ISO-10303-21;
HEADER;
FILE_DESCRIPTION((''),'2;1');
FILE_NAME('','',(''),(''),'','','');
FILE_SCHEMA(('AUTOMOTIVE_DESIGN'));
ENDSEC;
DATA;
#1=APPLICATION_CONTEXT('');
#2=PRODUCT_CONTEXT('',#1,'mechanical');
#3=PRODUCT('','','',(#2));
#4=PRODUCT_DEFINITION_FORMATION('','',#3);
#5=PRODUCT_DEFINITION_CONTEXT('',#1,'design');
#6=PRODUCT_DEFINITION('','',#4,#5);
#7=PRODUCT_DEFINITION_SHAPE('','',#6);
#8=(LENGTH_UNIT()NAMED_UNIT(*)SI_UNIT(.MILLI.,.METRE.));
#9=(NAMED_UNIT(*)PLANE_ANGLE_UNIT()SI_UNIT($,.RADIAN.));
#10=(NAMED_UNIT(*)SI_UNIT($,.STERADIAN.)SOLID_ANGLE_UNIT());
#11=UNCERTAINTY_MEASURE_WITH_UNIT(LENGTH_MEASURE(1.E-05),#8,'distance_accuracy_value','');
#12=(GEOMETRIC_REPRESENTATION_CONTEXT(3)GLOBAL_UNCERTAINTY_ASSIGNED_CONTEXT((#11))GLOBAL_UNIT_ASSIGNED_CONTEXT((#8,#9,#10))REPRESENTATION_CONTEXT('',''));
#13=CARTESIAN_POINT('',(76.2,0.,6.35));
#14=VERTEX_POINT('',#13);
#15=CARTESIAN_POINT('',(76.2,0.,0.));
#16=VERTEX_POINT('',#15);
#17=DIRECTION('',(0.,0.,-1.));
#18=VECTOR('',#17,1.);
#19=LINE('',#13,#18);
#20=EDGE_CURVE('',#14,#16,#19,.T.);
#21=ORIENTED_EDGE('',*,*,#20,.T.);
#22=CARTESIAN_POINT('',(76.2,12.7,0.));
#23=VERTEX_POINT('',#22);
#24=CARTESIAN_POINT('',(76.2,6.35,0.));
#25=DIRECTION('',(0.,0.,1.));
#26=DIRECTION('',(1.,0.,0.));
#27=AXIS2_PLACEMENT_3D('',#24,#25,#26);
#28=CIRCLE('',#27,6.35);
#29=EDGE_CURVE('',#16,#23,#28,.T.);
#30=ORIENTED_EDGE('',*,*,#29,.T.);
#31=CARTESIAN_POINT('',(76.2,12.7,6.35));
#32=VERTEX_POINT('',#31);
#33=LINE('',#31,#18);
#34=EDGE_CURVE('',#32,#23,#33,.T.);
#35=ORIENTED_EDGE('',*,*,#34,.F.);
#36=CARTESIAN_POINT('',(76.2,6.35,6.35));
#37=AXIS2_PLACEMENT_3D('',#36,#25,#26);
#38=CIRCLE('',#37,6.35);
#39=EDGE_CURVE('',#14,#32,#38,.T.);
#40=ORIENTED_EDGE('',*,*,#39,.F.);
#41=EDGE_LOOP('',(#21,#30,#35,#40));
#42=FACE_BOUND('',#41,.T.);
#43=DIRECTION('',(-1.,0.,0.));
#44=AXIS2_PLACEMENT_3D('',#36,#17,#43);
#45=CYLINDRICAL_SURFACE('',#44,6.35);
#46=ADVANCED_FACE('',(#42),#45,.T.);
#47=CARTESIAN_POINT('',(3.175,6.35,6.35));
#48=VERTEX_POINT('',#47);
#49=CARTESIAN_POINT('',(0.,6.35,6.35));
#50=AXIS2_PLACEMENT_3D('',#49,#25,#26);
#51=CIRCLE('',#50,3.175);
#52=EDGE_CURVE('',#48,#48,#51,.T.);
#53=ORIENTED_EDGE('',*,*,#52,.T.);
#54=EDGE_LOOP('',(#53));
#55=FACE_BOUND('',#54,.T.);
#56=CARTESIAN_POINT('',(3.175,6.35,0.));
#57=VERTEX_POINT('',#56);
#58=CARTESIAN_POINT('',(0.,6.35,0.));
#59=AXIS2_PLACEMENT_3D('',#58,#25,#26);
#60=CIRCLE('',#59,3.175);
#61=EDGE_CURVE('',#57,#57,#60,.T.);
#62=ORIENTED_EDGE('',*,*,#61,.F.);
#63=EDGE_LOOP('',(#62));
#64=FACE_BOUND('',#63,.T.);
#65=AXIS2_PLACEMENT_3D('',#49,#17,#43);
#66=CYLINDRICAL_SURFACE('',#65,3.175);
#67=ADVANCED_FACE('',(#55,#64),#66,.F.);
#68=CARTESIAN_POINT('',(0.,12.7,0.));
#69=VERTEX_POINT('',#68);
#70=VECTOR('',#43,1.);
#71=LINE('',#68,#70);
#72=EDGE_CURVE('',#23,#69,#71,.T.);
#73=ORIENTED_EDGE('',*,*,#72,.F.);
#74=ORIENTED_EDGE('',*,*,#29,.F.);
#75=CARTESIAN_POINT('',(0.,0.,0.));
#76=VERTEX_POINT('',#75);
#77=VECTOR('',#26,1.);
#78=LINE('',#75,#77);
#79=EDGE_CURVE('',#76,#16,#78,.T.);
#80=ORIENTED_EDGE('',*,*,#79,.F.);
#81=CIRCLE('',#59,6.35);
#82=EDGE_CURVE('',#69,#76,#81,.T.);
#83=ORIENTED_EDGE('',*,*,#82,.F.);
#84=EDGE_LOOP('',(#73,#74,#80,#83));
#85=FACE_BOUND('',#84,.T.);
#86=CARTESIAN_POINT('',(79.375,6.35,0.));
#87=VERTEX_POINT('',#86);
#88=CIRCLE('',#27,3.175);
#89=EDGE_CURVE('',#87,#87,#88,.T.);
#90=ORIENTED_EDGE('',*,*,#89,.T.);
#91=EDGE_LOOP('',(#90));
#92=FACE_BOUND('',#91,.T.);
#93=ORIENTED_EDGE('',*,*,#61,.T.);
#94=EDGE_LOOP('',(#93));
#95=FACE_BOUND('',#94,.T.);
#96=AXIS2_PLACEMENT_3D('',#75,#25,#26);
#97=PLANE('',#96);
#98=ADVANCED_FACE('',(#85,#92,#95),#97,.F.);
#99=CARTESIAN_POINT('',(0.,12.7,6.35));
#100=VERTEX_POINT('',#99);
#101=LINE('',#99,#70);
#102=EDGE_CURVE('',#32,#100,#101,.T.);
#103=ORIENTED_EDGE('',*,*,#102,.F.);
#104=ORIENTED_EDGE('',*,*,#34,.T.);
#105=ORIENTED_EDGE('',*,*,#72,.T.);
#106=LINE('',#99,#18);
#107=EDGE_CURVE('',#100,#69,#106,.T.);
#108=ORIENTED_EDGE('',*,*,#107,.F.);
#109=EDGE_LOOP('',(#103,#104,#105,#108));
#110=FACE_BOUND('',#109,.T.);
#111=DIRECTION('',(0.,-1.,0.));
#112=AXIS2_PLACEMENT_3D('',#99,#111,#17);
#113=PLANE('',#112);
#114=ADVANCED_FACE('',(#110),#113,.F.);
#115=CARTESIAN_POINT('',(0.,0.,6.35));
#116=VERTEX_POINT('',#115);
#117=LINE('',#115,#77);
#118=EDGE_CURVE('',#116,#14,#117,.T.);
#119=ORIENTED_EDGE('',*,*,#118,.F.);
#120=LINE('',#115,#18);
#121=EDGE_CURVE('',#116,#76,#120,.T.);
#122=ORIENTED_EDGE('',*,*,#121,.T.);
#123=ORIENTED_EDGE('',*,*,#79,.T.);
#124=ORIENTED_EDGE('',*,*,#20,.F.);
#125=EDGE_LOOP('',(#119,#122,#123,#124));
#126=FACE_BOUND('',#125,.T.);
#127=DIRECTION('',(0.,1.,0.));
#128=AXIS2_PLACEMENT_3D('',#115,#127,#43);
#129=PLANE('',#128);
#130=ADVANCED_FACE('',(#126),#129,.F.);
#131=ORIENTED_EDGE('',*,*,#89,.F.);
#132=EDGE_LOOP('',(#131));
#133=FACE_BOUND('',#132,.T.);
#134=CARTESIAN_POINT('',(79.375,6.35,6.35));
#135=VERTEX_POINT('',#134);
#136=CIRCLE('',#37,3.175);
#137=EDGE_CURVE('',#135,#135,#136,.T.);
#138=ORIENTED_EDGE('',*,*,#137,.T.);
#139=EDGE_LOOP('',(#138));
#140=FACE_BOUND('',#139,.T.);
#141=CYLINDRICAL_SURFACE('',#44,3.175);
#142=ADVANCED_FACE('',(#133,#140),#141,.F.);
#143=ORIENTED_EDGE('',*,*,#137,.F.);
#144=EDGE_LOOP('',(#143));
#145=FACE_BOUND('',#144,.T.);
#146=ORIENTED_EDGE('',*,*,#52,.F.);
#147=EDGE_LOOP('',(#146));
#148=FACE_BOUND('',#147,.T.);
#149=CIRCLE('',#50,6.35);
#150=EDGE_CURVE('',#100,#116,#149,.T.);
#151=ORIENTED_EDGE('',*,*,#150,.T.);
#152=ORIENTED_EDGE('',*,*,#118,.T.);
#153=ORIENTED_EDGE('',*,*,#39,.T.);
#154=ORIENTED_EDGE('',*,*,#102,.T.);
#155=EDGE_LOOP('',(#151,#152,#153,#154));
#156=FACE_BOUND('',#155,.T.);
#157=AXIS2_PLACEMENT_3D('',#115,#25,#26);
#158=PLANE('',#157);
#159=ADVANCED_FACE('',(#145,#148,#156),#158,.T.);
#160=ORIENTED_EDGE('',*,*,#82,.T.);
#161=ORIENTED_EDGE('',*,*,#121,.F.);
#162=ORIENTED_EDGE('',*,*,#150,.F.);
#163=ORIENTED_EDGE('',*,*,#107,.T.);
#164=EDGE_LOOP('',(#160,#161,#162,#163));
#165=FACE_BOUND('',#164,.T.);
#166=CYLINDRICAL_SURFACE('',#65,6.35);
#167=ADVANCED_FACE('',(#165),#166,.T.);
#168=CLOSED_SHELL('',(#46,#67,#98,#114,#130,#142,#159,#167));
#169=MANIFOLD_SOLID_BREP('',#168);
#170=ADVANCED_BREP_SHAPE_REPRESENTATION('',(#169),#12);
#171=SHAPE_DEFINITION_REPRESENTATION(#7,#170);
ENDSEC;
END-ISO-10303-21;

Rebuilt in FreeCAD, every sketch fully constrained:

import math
import FreeCAD as App
import Part
import Sketcher
Q = App.Units.Quantity

doc = App.newDocument("Part")
body = doc.addObject("PartDesign::Body", "Body")

# Sketch on XY plane
sketch1 = body.newObject("Sketcher::SketchObject", "Sketch")
sketch1.AttachmentSupport = (doc.getObject("XY_Plane"), [""])
sketch1.MapMode = "FlatFace"
sketch1.addGeometry([
    Part.LineSegment(App.Vector(0, 0, 0), App.Vector(76.2, 0, 0)),  # 0
    Part.ArcOfCircle(Part.Circle(App.Vector(76.2, 6.3, 0), App.Vector(0, 0, 1), 6.3), math.radians(-90), math.radians(90)),  # 1
    Part.LineSegment(App.Vector(76.2, 12.7, 0), App.Vector(0, 12.7, 0)),  # 2
    Part.ArcOfCircle(Part.Circle(App.Vector(0, 6.3, 0), App.Vector(0, 0, 1), 6.3), math.radians(90), math.radians(270)),  # 3
    Part.Circle(App.Vector(0, 6.3, 0), App.Vector(0, 0, 1), 3.2),  # 4
    Part.Circle(App.Vector(76.2, 6.3, 0), App.Vector(0, 0, 1), 3.2),  # 5
], False)
sketch1.addConstraint([
    Sketcher.Constraint("Tangent", 0, 2, 1, 1),
    Sketcher.Constraint("Tangent", 1, 2, 2, 1),
    Sketcher.Constraint("Tangent", 2, 2, 3, 1),
    Sketcher.Constraint("Tangent", 3, 2, 0, 1),
    Sketcher.Constraint("Horizontal", 0),
    Sketcher.Constraint("Horizontal", 2),
    Sketcher.Constraint("Coincident", 3, 2, -1, 1),
    Sketcher.Constraint("Coincident", 4, 3, 3, 3),
    Sketcher.Constraint("Coincident", 5, 3, 1, 3),
    Sketcher.Constraint("Equal", 4, 5),
    Sketcher.Constraint("Diameter", 4, Q("0.25 in")),
    Sketcher.Constraint("DistanceX", 0, 1, 0, 2, Q("3 in")),
    Sketcher.Constraint("Radius", 1, Q("0.25 in")),
])
pad1 = body.newObject("PartDesign::Pad", "Pad")
pad1.Profile = sketch1
pad1.Length = Q("0.25 in")

doc.recompute()
